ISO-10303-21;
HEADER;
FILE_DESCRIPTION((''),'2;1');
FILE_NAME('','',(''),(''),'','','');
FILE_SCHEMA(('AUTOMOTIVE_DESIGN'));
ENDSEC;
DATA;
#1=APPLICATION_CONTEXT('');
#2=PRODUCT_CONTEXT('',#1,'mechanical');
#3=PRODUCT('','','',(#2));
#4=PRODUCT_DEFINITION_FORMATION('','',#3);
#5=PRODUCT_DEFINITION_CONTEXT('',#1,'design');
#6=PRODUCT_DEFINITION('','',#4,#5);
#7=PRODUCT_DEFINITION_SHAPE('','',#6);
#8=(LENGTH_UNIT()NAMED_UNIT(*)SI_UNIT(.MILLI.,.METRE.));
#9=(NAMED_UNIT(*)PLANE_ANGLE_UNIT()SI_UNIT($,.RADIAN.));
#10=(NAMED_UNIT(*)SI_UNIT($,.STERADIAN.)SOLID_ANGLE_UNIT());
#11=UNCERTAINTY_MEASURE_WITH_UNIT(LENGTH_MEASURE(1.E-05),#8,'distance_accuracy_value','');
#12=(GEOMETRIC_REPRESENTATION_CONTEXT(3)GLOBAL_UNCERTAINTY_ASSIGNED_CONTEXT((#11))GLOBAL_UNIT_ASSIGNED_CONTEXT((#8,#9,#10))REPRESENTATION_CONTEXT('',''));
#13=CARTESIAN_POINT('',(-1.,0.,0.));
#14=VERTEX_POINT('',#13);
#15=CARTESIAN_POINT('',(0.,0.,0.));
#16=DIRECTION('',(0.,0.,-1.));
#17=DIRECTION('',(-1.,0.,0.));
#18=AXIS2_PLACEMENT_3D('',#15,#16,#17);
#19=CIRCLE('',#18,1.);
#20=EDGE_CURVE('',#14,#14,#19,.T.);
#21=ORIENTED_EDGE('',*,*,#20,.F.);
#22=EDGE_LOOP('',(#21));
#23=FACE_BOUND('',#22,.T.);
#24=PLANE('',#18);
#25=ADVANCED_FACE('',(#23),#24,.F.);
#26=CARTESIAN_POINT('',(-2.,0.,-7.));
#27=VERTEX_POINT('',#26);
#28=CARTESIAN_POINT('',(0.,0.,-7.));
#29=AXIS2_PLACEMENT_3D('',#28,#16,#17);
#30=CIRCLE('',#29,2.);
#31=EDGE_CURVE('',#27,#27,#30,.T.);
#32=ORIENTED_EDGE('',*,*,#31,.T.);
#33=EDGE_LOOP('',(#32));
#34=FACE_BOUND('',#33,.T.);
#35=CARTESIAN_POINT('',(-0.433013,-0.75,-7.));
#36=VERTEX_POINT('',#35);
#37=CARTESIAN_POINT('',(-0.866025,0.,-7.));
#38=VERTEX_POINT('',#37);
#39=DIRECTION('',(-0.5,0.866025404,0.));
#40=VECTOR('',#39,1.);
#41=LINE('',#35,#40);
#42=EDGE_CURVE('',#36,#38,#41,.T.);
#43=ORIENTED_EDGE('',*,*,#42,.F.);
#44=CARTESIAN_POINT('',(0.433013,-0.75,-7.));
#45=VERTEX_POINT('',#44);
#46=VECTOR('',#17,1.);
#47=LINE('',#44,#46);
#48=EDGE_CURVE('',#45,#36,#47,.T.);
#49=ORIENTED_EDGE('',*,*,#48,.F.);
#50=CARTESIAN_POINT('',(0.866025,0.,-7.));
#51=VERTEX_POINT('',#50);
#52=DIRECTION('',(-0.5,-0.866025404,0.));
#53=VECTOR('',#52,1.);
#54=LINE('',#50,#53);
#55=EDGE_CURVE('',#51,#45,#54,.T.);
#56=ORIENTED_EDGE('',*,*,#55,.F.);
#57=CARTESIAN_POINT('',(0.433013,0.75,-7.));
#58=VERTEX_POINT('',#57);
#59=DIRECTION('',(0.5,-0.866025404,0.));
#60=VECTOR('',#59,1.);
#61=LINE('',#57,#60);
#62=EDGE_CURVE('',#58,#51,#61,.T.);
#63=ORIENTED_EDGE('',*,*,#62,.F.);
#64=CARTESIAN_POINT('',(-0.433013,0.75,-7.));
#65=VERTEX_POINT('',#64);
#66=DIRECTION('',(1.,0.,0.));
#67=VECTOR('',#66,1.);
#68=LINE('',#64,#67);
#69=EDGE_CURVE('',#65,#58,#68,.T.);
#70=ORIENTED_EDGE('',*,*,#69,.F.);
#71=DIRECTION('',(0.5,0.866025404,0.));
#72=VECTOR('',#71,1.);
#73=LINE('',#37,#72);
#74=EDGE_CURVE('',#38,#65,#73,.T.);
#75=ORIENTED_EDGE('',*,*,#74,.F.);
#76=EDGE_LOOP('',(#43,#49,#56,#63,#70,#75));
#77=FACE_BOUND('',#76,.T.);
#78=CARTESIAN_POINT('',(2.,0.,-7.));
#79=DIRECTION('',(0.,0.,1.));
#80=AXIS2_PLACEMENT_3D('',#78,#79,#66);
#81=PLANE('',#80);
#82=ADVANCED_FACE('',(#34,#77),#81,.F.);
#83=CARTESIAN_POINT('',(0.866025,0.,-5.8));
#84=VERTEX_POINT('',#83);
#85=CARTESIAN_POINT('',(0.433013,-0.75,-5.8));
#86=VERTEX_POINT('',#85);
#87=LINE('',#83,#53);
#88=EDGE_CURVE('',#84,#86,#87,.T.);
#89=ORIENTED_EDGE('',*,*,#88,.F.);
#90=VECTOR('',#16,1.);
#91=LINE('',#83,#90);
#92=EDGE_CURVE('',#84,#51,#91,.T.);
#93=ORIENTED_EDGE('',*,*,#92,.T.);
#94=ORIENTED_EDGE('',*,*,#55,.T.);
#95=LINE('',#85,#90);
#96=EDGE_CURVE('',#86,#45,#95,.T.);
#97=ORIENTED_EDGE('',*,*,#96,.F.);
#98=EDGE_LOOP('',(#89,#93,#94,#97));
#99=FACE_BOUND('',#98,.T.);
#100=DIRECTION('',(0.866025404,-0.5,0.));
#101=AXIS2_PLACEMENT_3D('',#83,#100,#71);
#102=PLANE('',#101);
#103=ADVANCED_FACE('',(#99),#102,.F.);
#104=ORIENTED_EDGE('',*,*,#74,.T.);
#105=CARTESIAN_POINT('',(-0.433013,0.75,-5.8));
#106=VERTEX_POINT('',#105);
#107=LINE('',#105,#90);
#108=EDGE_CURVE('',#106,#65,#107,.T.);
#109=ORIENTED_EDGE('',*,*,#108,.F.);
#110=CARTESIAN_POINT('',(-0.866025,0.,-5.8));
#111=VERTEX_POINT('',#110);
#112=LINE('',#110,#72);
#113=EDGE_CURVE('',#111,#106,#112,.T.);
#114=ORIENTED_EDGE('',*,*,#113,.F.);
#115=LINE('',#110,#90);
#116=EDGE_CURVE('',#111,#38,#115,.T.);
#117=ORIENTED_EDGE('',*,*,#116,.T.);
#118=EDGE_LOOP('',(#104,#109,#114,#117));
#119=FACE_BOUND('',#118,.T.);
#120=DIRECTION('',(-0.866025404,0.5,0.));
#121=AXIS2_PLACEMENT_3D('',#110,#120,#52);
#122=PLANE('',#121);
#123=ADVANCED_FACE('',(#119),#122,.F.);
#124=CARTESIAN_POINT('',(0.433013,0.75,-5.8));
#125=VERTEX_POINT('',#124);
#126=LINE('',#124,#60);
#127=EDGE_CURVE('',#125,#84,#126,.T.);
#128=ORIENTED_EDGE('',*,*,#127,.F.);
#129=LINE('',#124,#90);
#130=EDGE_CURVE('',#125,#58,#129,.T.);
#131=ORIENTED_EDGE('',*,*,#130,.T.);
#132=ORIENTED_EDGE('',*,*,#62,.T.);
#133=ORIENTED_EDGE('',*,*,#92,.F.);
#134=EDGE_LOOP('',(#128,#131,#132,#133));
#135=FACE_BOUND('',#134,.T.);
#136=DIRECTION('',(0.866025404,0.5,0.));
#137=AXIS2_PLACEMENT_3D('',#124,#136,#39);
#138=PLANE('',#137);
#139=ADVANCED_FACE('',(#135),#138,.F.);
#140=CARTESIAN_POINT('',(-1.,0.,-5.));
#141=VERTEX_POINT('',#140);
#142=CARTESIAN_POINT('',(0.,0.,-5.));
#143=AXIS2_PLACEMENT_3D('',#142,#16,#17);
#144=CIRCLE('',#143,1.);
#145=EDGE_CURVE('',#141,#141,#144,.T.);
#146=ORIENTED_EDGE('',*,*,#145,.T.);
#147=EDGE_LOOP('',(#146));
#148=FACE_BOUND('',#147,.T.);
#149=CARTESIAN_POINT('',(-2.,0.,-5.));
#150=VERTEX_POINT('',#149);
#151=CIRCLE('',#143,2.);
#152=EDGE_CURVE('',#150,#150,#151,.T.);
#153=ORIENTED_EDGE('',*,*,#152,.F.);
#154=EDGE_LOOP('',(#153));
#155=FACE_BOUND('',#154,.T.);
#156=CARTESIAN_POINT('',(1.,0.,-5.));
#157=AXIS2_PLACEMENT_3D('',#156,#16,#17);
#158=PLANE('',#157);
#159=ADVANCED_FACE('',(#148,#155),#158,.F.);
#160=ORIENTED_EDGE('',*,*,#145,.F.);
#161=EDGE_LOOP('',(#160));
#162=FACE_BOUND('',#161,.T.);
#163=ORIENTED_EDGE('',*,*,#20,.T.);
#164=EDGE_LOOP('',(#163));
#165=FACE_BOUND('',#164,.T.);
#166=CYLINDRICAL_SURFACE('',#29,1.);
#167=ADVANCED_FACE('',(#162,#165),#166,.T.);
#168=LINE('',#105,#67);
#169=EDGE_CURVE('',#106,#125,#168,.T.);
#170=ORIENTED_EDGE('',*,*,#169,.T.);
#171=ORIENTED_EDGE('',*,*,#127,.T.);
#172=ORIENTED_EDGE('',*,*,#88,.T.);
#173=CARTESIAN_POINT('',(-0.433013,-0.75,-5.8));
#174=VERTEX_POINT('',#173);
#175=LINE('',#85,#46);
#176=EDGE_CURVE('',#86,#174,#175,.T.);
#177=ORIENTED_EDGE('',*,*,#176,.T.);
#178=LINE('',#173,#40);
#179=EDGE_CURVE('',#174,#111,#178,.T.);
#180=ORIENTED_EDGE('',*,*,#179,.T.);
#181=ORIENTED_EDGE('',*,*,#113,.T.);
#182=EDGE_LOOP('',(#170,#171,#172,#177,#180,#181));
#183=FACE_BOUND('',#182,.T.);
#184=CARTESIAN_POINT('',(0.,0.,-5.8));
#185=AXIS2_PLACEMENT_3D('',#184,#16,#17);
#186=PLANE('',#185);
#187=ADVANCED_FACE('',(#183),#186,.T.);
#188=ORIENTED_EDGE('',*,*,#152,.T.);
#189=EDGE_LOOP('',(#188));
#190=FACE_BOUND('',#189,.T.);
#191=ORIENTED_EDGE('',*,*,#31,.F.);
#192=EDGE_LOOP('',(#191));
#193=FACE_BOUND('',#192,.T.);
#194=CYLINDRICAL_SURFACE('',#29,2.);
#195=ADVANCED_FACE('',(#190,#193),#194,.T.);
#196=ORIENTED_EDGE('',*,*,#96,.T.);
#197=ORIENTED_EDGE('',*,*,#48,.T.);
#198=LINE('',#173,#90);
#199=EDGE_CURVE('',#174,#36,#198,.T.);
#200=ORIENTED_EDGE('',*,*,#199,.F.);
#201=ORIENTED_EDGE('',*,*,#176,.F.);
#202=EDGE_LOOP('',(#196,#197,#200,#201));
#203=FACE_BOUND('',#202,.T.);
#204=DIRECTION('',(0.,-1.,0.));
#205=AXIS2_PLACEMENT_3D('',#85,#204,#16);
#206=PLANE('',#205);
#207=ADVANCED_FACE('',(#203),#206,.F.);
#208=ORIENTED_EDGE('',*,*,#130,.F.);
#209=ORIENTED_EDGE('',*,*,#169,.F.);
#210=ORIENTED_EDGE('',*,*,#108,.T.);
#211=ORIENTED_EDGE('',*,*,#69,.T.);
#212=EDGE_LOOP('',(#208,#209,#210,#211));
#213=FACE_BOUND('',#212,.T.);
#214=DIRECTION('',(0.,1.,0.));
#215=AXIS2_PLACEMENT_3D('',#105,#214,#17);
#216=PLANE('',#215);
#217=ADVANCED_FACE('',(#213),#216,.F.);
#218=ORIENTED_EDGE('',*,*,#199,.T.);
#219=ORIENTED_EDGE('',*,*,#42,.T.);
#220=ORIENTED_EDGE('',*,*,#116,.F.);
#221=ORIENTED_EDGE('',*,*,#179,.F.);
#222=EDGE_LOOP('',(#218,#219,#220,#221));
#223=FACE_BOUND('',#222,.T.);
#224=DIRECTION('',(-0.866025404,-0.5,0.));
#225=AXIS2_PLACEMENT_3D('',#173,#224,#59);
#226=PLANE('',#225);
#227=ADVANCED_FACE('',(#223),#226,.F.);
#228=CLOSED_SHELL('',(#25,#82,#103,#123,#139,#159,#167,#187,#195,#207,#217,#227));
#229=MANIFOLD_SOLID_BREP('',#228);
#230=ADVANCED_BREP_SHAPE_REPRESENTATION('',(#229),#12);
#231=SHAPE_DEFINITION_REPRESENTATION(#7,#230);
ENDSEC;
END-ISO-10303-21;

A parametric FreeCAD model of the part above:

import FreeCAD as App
import Part
import Sketcher
Q = App.Units.Quantity

doc = App.newDocument("Part")
body = doc.addObject("PartDesign::Body", "Body")

# Sketch on XZ plane
sketch1 = body.newObject("Sketcher::SketchObject", "Sketch")
sketch1.AttachmentSupport = (doc.getObject("XZ_Plane"), [""])
sketch1.MapMode = "FlatFace"
sketch1.addGeometry(Part.LineSegment(App.Vector(0, 0, 0), App.Vector(1, 0, 0)), False)
sketch1.addGeometry(Part.LineSegment(App.Vector(1, 0, 0), App.Vector(1, -5, 0)), False)
sketch1.addGeometry(Part.LineSegment(App.Vector(1, -5, 0), App.Vector(2, -5, 0)), False)
sketch1.addGeometry(Part.LineSegment(App.Vector(2, -5, 0), App.Vector(2, -7, 0)), False)
sketch1.addGeometry(Part.LineSegment(App.Vector(2, -7, 0), App.Vector(0, -7, 0)), False)
sketch1.addGeometry(Part.LineSegment(App.Vector(0, -7, 0), App.Vector(0, 0, 0)), False)
sketch1.addConstraint(Sketcher.Constraint("Coincident", 0, 2, 1, 1))
sketch1.addConstraint(Sketcher.Constraint("Coincident", 1, 2, 2, 1))
sketch1.addConstraint(Sketcher.Constraint("Coincident", 2, 2, 3, 1))
sketch1.addConstraint(Sketcher.Constraint("Coincident", 3, 2, 4, 1))
sketch1.addConstraint(Sketcher.Constraint("Coincident", 4, 2, 5, 1))
sketch1.addConstraint(Sketcher.Constraint("Coincident", 5, 2, 0, 1))
sketch1.addConstraint(Sketcher.Constraint("Horizontal", 0))
sketch1.addConstraint(Sketcher.Constraint("Vertical", 1))
sketch1.addConstraint(Sketcher.Constraint("Horizontal", 2))
sketch1.addConstraint(Sketcher.Constraint("Vertical", 3))
sketch1.addConstraint(Sketcher.Constraint("Horizontal", 4))
sketch1.addConstraint(Sketcher.Constraint("Vertical", 5))
sketch1.addConstraint(Sketcher.Constraint("Coincident", 5, 2, -1, 1))
sketch1.addConstraint(Sketcher.Constraint("Equal", 0, 2))
sketch1.addConstraint(Sketcher.Constraint("Equal", 4, 3))
sketch1.addConstraint(Sketcher.Constraint("DistanceX", 0, 1, 0, 2, Q("1 mm")))
sketch1.addConstraint(Sketcher.Constraint("DistanceY", 1, 2, 1, 1, Q("5 mm")))
revolution = body.newObject("PartDesign::Revolution", "Revolution")
revolution.Profile = sketch1
revolution.ReferenceAxis = (sketch1, ["V_Axis"])
revolution.Angle = 360

# Sketch on XY plane
sketch2 = body.newObject("Sketcher::SketchObject", "Sketch001")
sketch2.AttachmentSupport = (doc.getObject("XY_Plane"), [""])
sketch2.MapMode = "FlatFace"
sketch2.AttachmentOffset = App.Placement(App.Vector(0, 0, -7), App.Rotation())
sketch2.addGeometry(Part.LineSegment(App.Vector(-0.4, 0.8, 0), App.Vector(0.4, 0.8, 0)), False)
sketch2.addGeometry(Part.LineSegment(App.Vector(0.4, 0.8, 0), App.Vector(0.9, 0, 0)), False)
sketch2.addGeometry(Part.LineSegment(App.Vector(0.9, 0, 0), App.Vector(0.4, -0.8, 0)), False)
sketch2.addGeometry(Part.LineSegment(App.Vector(0.4, -0.8, 0), App.Vector(-0.4, -0.8, 0)), False)
sketch2.addGeometry(Part.LineSegment(App.Vector(-0.4, -0.8, 0), App.Vector(-0.9, 0, 0)), False)
sketch2.addGeometry(Part.LineSegment(App.Vector(-0.9, 0, 0), App.Vector(-0.4, 0.8, 0)), False)
sketch2.addConstraint(Sketcher.Constraint("Coincident", 0, 2, 1, 1))
sketch2.addConstraint(Sketcher.Constraint("Coincident", 1, 2, 2, 1))
sketch2.addConstraint(Sketcher.Constraint("Coincident", 2, 2, 3, 1))
sketch2.addConstraint(Sketcher.Constraint("Coincident", 3, 2, 4, 1))
sketch2.addConstraint(Sketcher.Constraint("Coincident", 4, 2, 5, 1))
sketch2.addConstraint(Sketcher.Constraint("Coincident", 5, 2, 0, 1))
sketch2.addConstraint(Sketcher.Constraint("Horizontal", 0))
sketch2.addConstraint(Sketcher.Constraint("Horizontal", 3))
sketch2.addConstraint(Sketcher.Constraint("Symmetric", 0, 2, 3, 2, -1, 1))
sketch2.addConstraint(Sketcher.Constraint("Symmetric", 1, 2, 4, 2, -1, 1))
sketch2.addConstraint(Sketcher.Constraint("PointOnObject", 1, 2, -1))
sketch2.addConstraint(Sketcher.Constraint("Parallel", 2, 5))
sketch2.addConstraint(Sketcher.Constraint("Vertical", 0, 2, 2, 2))
sketch2.addConstraint(Sketcher.Constraint("Angle", 1, Q("-60 deg")))
sketch2.addConstraint(Sketcher.Constraint("DistanceY", 2, 2, 0, 2, Q("1.5 mm")))
sketch2.addConstraint(Sketcher.Constraint("DistanceX", 0, 1, 0, 2, Q("0.866025 mm")))
pocket1 = body.newObject("PartDesign::Pocket", "Pocket")
pocket1.Profile = sketch2
pocket1.Length = 1.2
pocket1.Reversed = True

doc.recompute()
